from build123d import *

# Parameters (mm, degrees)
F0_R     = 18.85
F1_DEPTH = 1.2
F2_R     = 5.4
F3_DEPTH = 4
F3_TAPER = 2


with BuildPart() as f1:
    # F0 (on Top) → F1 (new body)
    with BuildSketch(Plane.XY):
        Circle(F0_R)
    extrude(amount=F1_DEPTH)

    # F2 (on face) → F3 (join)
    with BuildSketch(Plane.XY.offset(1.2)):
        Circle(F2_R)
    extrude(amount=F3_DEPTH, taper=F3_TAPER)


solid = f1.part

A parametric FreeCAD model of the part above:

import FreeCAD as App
import Part
import Sketcher

V = App.Vector
Q = App.Units.Quantity

doc = App.newDocument("Part")
params = doc.addObject("Spreadsheet::Sheet", "Params")
for row, (alias, value) in enumerate([
    ("sketch1_diameter", "37.7 mm"),
    ("pad1_length", "1.2 mm"),
    ("sketch2_diameter", "10.8 mm"),
    ("pad2_length", "4 mm"),
    ("pad2_taper", "-2 deg"),
], start=1):
    params.set(f"A{row}", alias)
    params.set(f"B{row}", "=" + value)
    params.setAlias(f"B{row}", alias)

body = doc.addObject("PartDesign::Body", "Body")

# Sketch on XY plane
sketch1 = doc.addObject("Sketcher::SketchObject", "Sketch")
body.addObject(sketch1)
sketch1.AttachmentSupport = (doc.XY_Plane, [""])
sketch1.MapMode = "FlatFace"
sketch1.addGeometry(Part.Circle(V(0, 0, 0), V(0, 0, 1), 19), False)
sketch1.addConstraint(Sketcher.Constraint("Coincident", 0, 3, -1, 1))
sketch1.addConstraint(Sketcher.Constraint("Diameter", 0, Q("37.7 mm")))
sketch1.setExpression("Constraints[1]", "Params.sketch1_diameter")
pad1 = doc.addObject("PartDesign::Pad", "Pad")
body.addObject(pad1)
pad1.Profile = sketch1
pad1.setExpression("Length", "Params.pad1_length")

# Sketch on XY plane
sketch2 = doc.addObject("Sketcher::SketchObject", "Sketch001")
body.addObject(sketch2)
sketch2.AttachmentSupport = (doc.XY_Plane, [""])
sketch2.MapMode = "FlatFace"
sketch2.AttachmentOffset = App.Placement(V(0, 0, 1.2), App.Rotation())
sketch2.addGeometry(Part.Circle(V(0, 0, 0), V(0, 0, 1), 5), False)
sketch2.addConstraint(Sketcher.Constraint("Coincident", 0, 3, -1, 1))
sketch2.addConstraint(Sketcher.Constraint("Diameter", 0, Q("10.8 mm")))
sketch2.setExpression("Constraints[1]", "Params.sketch2_diameter")
pad2 = doc.addObject("PartDesign::Pad", "Pad001")
body.addObject(pad2)
pad2.Profile = sketch2
pad2.setExpression("Length", "Params.pad2_length")
pad2.setExpression("TaperAngle", "Params.pad2_taper")

doc.recompute()
